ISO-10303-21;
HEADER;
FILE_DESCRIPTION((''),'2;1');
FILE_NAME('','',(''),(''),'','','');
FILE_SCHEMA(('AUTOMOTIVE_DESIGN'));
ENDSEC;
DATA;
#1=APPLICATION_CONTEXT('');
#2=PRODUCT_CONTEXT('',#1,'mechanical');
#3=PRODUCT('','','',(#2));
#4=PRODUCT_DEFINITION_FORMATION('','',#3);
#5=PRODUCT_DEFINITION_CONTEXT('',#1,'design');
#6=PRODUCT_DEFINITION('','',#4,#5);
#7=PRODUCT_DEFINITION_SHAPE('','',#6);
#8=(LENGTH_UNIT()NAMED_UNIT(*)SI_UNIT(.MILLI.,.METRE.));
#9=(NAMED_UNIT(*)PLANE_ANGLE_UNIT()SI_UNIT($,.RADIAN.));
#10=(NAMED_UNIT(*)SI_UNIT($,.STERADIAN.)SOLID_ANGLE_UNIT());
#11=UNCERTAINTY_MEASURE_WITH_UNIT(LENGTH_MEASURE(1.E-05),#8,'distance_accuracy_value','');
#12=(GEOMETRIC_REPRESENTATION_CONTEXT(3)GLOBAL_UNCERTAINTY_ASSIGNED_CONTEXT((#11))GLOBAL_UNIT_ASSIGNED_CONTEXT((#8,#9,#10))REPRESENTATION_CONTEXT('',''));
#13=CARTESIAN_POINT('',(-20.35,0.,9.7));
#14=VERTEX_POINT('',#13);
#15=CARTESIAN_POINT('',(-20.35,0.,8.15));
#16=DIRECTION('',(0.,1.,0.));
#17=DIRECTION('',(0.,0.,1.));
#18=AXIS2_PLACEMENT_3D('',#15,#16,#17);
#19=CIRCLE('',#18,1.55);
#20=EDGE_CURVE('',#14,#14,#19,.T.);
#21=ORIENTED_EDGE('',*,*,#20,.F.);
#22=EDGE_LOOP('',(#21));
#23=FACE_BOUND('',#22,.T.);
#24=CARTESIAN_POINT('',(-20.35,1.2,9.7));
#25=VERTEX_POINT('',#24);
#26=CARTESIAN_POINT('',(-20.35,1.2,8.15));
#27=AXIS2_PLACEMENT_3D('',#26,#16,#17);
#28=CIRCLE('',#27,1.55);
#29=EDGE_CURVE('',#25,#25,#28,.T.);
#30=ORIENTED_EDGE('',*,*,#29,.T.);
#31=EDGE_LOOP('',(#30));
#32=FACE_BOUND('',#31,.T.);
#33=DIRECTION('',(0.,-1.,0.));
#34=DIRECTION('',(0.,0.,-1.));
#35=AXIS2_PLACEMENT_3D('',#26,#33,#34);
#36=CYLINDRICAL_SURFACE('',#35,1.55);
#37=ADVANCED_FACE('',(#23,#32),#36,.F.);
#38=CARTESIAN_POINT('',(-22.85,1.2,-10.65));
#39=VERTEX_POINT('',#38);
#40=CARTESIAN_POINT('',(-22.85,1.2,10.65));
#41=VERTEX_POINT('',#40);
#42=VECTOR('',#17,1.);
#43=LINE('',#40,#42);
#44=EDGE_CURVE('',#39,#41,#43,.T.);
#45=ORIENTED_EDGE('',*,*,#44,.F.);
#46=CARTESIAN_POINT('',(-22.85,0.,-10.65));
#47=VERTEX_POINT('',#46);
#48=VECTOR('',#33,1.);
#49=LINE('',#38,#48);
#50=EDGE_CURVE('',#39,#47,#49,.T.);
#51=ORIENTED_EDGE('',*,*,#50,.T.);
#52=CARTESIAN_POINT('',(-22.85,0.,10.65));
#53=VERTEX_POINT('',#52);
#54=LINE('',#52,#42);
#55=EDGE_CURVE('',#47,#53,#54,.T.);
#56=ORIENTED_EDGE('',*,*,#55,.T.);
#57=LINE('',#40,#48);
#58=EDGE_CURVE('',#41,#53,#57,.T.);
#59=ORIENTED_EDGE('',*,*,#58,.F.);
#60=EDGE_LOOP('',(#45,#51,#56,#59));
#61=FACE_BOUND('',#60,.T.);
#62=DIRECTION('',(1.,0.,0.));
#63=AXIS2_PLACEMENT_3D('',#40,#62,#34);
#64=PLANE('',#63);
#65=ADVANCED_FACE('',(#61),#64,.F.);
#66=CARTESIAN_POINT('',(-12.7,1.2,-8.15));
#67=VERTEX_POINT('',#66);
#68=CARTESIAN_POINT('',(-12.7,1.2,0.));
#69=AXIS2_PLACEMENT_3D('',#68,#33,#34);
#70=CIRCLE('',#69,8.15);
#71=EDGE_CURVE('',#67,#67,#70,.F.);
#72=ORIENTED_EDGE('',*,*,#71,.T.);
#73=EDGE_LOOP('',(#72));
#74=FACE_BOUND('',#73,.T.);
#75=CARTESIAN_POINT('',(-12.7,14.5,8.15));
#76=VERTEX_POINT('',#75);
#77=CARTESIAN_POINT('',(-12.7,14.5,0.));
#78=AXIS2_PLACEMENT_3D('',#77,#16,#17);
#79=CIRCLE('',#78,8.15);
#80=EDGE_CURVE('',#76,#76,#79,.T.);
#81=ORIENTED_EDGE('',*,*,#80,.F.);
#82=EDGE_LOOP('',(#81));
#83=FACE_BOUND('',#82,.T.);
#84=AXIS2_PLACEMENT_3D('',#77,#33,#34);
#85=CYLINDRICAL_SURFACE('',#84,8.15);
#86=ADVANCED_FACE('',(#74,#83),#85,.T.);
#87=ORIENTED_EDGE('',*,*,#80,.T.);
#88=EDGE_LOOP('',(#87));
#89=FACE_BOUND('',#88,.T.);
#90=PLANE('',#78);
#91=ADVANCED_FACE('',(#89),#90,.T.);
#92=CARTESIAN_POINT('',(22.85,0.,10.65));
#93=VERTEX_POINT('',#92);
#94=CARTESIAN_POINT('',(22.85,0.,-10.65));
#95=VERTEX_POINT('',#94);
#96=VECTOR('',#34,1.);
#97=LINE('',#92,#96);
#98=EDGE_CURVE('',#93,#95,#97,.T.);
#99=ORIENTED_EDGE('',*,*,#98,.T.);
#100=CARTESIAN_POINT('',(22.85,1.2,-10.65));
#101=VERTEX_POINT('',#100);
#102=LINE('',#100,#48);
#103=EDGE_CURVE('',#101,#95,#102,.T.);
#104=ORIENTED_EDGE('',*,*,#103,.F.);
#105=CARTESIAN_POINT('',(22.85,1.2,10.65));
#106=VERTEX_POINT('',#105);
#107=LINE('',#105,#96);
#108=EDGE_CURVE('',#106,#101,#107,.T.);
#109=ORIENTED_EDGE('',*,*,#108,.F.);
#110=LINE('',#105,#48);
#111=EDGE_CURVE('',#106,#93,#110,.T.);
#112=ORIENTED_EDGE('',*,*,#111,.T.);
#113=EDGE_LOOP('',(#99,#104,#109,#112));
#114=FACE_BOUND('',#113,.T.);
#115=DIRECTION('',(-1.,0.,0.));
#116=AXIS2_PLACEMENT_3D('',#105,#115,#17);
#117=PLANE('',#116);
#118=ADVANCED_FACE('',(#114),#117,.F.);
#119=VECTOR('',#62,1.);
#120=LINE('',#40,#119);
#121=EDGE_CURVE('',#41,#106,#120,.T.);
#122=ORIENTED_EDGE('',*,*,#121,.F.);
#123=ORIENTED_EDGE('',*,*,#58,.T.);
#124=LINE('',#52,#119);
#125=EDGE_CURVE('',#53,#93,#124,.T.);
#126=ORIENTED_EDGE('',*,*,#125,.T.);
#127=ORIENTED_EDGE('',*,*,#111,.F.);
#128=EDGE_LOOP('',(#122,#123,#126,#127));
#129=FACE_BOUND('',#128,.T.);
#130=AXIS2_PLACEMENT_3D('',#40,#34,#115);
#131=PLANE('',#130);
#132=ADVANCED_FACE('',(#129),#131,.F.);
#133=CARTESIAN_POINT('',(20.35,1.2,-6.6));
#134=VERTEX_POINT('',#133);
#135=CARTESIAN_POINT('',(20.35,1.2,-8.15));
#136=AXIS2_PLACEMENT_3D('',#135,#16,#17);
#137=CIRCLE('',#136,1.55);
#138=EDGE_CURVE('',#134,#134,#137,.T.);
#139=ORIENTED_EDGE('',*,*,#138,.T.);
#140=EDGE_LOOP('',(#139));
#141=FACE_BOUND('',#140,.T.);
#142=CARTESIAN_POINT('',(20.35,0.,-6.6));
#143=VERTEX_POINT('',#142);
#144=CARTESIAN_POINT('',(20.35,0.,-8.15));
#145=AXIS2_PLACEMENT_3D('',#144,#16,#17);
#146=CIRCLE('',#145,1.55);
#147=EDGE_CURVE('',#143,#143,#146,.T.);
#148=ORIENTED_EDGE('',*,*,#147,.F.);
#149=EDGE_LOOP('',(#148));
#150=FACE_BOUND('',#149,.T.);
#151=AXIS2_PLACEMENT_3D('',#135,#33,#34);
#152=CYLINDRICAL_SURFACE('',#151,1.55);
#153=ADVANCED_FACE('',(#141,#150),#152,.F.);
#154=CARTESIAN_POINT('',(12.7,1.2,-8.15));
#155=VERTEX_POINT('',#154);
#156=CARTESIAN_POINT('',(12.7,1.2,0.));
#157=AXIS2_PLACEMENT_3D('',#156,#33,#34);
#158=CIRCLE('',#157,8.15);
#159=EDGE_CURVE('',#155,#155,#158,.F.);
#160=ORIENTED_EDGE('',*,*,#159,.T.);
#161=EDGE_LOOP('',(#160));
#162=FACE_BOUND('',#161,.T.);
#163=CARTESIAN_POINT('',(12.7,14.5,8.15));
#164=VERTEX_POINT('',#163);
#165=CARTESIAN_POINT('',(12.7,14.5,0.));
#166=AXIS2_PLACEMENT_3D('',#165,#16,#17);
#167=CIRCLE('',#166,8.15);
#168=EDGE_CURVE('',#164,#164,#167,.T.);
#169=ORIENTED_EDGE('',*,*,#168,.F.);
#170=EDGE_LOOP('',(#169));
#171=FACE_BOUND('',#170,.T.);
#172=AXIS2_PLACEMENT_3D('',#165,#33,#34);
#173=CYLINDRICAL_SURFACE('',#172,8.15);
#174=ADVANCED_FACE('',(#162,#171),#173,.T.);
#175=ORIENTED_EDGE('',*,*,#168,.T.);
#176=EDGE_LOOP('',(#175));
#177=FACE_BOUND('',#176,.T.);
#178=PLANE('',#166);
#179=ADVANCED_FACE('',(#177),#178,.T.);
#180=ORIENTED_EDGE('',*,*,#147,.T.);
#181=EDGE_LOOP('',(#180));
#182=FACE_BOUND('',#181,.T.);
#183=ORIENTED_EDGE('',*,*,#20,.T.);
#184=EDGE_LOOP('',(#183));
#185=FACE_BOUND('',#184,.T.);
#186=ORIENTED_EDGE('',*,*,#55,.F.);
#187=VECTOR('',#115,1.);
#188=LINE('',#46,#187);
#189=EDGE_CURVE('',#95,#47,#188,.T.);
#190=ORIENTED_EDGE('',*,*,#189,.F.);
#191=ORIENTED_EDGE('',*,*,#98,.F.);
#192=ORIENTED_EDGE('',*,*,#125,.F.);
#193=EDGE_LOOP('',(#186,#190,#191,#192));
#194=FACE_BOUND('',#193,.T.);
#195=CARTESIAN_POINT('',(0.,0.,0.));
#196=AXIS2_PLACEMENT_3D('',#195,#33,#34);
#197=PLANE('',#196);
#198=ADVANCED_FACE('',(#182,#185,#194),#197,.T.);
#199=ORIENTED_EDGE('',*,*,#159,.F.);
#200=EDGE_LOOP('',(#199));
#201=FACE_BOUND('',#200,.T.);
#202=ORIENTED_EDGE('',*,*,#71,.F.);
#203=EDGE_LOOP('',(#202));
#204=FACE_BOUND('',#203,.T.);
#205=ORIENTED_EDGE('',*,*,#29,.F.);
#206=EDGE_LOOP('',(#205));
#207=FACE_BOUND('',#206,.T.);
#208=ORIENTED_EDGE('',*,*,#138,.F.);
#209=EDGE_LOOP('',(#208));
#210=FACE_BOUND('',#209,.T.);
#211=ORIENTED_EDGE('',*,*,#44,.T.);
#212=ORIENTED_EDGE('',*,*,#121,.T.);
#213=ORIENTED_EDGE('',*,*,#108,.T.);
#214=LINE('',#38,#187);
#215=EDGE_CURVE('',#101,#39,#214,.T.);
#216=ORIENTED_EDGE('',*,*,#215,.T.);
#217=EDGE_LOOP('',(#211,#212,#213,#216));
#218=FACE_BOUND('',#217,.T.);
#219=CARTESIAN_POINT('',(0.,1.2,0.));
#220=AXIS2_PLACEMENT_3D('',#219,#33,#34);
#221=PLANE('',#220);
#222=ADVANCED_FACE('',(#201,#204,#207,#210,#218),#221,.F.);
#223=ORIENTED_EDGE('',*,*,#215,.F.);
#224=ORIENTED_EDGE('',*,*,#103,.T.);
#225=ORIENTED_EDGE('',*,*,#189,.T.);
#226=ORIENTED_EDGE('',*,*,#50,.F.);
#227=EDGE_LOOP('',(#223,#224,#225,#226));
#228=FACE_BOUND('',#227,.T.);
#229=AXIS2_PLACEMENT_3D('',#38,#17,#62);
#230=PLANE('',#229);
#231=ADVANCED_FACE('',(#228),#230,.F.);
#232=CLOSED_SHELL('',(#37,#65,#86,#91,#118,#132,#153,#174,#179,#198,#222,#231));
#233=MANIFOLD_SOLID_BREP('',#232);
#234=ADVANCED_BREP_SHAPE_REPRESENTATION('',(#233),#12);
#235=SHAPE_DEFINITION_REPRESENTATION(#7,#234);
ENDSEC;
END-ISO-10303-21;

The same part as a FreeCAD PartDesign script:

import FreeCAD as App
import Part
import Sketcher
from FreeCAD import Vector
Q = App.Units.Quantity


def add_polygon(sketch, points):
    """Adds a closed chain of lines whose ends are joined by coincident constraints."""
    first, n = sketch.GeometryCount, len(points)
    for a, b in zip(points, points[1:] + points[:1]):
        sketch.addGeometry(Part.LineSegment(App.Vector(*a, 0), App.Vector(*b, 0)), False)
    for i in range(n):
        sketch.addConstraint(Sketcher.Constraint("Coincident", first + i, 2, first + (i + 1) % n, 1))

doc = App.newDocument("Part")
body = doc.addObject("PartDesign::Body", "Body")

sketch1 = body.newObject("Sketcher::SketchObject", "Sketch")
sketch1.AttachmentSupport = (doc.getObject("XZ_Plane"), [""])
sketch1.MapMode = "FlatFace"
add_polygon(sketch1, [(-22.9, -10.7), (-22.9, 10.7), (22.9, 10.7), (22.9, -10.7)])
sketch1.addGeometry(Part.Circle(Vector(-20.4, 8.2, 0), Vector(0, 0, 1), 1.6), False)
sketch1.addGeometry(Part.Circle(Vector(20.4, -8.2, 0), Vector(0, 0, 1), 1.6), False)
sketch1.addConstraint(Sketcher.Constraint("Vertical", 0))
sketch1.addConstraint(Sketcher.Constraint("Horizontal", 1))
sketch1.addConstraint(Sketcher.Constraint("Vertical", 2))
sketch1.addConstraint(Sketcher.Constraint("Horizontal", 3))
sketch1.addConstraint(Sketcher.Constraint("Equal", 4, 5))
sketch1.addConstraint(Sketcher.Constraint("Symmetric", 4, 3, 5, 3, -1, 1))
sketch1.addConstraint(Sketcher.Constraint("Symmetric", 0, 2, 2, 2, -1, 1))
sketch1.addConstraint(Sketcher.Constraint("Diameter", 4, Q("3.1 mm")))
sketch1.addConstraint(Sketcher.Constraint("DistanceX", 1, 1, 1, 2, Q("45.7 mm")))
sketch1.addConstraint(Sketcher.Constraint("DistanceY", 0, 1, 0, 2, Q("21.3 mm")))
sketch1.addConstraint(Sketcher.Constraint("DistanceX", 4, 3, 5, 3, Q("40.7 mm")))
sketch1.addConstraint(Sketcher.Constraint("DistanceY", 5, 3, 4, 3, Q("16.3 mm")))
pad1 = body.newObject("PartDesign::Pad", "Pad")
pad1.Profile = sketch1
pad1.Length = 1.2
pad1.Reversed = True

sketch2 = body.newObject("Sketcher::SketchObject", "Sketch001")
sketch2.AttachmentSupport = (doc.getObject("XZ_Plane"), [""])
sketch2.MapMode = "FlatFace"
sketch2.AttachmentOffset = App.Placement(Vector(0, 0, -1.2), App.Rotation())
sketch2.addGeometry(Part.Circle(Vector(-13, 0, 0), Vector(0, 0, 1), 8), False)
sketch2.addGeometry(Part.Circle(Vector(13, 0, 0), Vector(0, 0, 1), 8), False)
sketch2.addConstraint(Sketcher.Constraint("Equal", 0, 1))
sketch2.addConstraint(Sketcher.Constraint("Symmetric", 0, 3, 1, 3, -1, 1))
sketch2.addConstraint(Sketcher.Constraint("PointOnObject", 0, 3, -1))
sketch2.addConstraint(Sketcher.Constraint("Diameter", 0, Q("16.3 mm")))
sketch2.addConstraint(Sketcher.Constraint("DistanceX", 0, 3, -1, 1, Q("12.7 mm")))
pad2 = body.newObject("PartDesign::Pad", "Pad001")
pad2.Profile = sketch2
pad2.Length = 13.3
pad2.Reversed = True

doc.recompute()
